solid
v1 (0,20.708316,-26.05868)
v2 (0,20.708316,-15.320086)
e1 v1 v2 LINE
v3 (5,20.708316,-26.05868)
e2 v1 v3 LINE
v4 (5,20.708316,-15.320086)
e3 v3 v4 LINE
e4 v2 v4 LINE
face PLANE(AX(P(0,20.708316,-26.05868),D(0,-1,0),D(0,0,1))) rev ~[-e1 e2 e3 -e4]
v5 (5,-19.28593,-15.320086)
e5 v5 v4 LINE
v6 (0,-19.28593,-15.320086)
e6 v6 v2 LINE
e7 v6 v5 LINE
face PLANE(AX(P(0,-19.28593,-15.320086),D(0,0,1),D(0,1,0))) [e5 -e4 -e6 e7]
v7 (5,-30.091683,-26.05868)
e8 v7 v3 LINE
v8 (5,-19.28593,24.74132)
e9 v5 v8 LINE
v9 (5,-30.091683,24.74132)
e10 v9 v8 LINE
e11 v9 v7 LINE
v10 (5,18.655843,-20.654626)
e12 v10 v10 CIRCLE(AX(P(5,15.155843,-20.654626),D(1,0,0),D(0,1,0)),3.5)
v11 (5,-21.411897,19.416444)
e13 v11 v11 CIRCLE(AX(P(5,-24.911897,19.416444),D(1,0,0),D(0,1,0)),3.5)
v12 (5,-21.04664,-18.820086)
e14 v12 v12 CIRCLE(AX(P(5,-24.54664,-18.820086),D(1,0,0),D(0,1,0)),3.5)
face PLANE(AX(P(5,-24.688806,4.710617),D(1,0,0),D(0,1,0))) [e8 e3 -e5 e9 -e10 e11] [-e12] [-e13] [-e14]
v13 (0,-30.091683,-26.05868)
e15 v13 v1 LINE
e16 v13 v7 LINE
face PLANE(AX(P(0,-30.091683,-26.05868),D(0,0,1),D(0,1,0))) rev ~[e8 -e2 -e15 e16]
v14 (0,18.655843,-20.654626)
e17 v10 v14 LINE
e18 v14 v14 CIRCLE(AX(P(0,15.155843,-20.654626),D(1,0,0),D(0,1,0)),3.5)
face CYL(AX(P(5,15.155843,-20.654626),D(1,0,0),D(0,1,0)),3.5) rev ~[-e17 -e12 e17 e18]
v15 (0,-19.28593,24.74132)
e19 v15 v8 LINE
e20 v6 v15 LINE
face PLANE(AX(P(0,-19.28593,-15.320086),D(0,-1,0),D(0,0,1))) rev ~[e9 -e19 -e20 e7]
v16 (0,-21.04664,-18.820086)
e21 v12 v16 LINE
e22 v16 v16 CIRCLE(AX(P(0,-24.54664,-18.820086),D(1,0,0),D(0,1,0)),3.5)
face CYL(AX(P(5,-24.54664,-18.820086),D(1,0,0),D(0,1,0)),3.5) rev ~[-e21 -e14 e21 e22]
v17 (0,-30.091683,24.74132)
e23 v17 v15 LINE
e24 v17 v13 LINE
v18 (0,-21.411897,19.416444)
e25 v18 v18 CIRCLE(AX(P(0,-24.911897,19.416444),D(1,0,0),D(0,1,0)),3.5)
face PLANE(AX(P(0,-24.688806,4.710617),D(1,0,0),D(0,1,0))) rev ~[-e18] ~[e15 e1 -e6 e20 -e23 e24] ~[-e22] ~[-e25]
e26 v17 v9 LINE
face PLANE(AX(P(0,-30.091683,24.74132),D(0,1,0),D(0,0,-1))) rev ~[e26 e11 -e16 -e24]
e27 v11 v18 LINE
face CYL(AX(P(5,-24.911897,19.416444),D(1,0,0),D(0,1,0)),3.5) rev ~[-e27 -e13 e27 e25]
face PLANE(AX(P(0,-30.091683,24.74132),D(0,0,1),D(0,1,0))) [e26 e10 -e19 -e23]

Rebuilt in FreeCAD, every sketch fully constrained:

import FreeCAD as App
import Part
import Sketcher
Q = App.Units.Quantity


def add_polygon(sketch, points):
    """Adds a closed chain of lines whose ends are joined by coincident constraints."""
    first, n = sketch.GeometryCount, len(points)
    for a, b in zip(points, points[1:] + points[:1]):
        sketch.addGeometry(Part.LineSegment(App.Vector(*a, 0), App.Vector(*b, 0)), False)
    for i in range(n):
        sketch.addConstraint(Sketcher.Constraint("Coincident", first + i, 2, first + (i + 1) % n, 1))

doc = App.newDocument("Part")
body = doc.addObject("PartDesign::Body", "Body")

sketch1 = body.newObject("Sketcher::SketchObject", "Sketch")
sketch1.AttachmentSupport = (doc.getObject("YZ_Plane"), [""])
sketch1.MapMode = "FlatFace"
add_polygon(sketch1, [(-19.28593, 24.74132), (-30.091683, 24.74132), (-30.091683, -26.05868), (20.708316, -26.05868), (20.708316, -15.320086), (-19.28593, -15.320086)])
sketch1.addConstraint([
    Sketcher.Constraint("Horizontal", 0),
    Sketcher.Constraint("Vertical", 1),
    Sketcher.Constraint("Horizontal", 2),
    Sketcher.Constraint("Vertical", 3),
    Sketcher.Constraint("Horizontal", 4),
    Sketcher.Constraint("Vertical", 5),
    Sketcher.Constraint("Equal", 2, 1),
    Sketcher.Constraint("DistanceX", 2, 1, 2, 2, Q("2 in")),
    Sketcher.Constraint("DistanceX", 0, 2, 0, 1, 10.805753),
    Sketcher.Constraint("DistanceY", 3, 1, 3, 2, 10.738594),
    Sketcher.Constraint("DistanceY", -1, 1, 0, 2, 24.74132),
    Sketcher.Constraint("DistanceX", 4, 2, -1, 1, 19.28593),
])
pad1 = body.newObject("PartDesign::Pad", "Pad")
pad1.Profile = sketch1
pad1.Length = 5

sketch2 = body.newObject("Sketcher::SketchObject", "Sketch001")
sketch2.AttachmentSupport = (doc.getObject("YZ_Plane"), [""])
sketch2.MapMode = "FlatFace"
sketch2.AttachmentOffset = App.Placement(App.Vector(0, 0, 5), App.Rotation())
sketch2.addGeometry([
    Part.Circle(App.Vector(-24.911897, 19.416444, 0), App.Vector(0, 0, 1), 3.5),
    Part.Circle(App.Vector(15.155843, -20.654626, 0), App.Vector(0, 0, 1), 3.5),
    Part.Circle(App.Vector(-24.54664, -18.820086, 0), App.Vector(0, 0, 1), 3.5),
], False)
sketch2.addConstraint([
    Sketcher.Constraint("Equal", 0, 1),
    Sketcher.Constraint("Equal", 1, 2),
    Sketcher.Constraint("Diameter", 0, 7.0),
    Sketcher.Constraint("DistanceX", 2, 3, -1, 1, 24.54664),
    Sketcher.Constraint("DistanceX", 0, 3, 1, 3, 40.06774),
    Sketcher.Constraint("DistanceY", 1, 3, 0, 3, 40.07107),
    Sketcher.Constraint("DistanceY", 2, 3, 0, 3, 38.23653),
    Sketcher.Constraint("DistanceX", 0, 3, -1, 1, 24.911897),
    Sketcher.Constraint("DistanceY", -1, 1, 0, 3, 19.416444),
])
pocket1 = body.newObject("PartDesign::Pocket", "Pocket")
pocket1.Profile = sketch2
pocket1.Length = Q("1 in")

doc.recompute()
